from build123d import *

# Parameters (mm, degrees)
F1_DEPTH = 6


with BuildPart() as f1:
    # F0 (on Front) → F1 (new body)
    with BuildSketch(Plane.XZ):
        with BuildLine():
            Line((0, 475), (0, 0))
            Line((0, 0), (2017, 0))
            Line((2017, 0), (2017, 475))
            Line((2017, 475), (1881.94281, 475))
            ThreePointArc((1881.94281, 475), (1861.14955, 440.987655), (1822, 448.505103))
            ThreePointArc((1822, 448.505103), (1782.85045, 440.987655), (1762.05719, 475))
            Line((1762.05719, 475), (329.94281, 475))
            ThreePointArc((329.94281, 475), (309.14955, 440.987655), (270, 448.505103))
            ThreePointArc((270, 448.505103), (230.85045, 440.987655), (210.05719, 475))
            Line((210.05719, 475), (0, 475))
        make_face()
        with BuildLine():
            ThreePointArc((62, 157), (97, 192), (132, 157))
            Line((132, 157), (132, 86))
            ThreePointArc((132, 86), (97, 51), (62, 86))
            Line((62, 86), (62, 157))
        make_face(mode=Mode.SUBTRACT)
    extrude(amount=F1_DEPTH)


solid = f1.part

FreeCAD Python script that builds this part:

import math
import FreeCAD as App
import Part
import Sketcher

doc = App.newDocument("Part")
params = doc.addObject("Spreadsheet::Sheet", "Params")
for row, (alias, value) in enumerate([
    ("sketch1_radius", "34.999999 mm"),
    ("sketch1_width", "2017 mm"),
    ("sketch1_height", "475 mm"),
    ("sketch1_height2", "71 mm"),
    ("pad1_length", "6 mm"),
], start=1):
    params.set(f"A{row}", alias)
    params.set(f"B{row}", "=" + value)
    params.setAlias(f"B{row}", alias)

body = doc.addObject("PartDesign::Body", "Body")

sketch1 = doc.addObject("Sketcher::SketchObject", "Sketch")
body.addObject(sketch1)
sketch1.AttachmentSupport = (doc.XZ_Plane, [""])
sketch1.MapMode = "FlatFace"
sketch1.addGeometry([
    Part.LineSegment(App.Vector(0, 475, 0), App.Vector(0, 0, 0)),
    Part.LineSegment(App.Vector(0, 0, 0), App.Vector(2017, 0, 0)),
    Part.LineSegment(App.Vector(2017, 0, 0), App.Vector(2017, 475, 0)),
    Part.LineSegment(App.Vector(2017, 475, 0), App.Vector(1882, 475, 0)),
    Part.ArcOfCircle(Part.Circle(App.Vector(1847, 473, 0), App.Vector(0, 0, 1), 35), math.radians(-136), math.radians(3)),
    Part.ArcOfCircle(Part.Circle(App.Vector(1797, 473, 0), App.Vector(0, 0, 1), 35), math.radians(177), math.radians(316)),
    Part.LineSegment(App.Vector(1762, 475, 0), App.Vector(330, 475, 0)),
    Part.ArcOfCircle(Part.Circle(App.Vector(295, 473, 0), App.Vector(0, 0, 1), 35), math.radians(-136), math.radians(3)),
    Part.ArcOfCircle(Part.Circle(App.Vector(245, 473, 0), App.Vector(0, 0, 1), 35), math.radians(177), math.radians(316)),
    Part.LineSegment(App.Vector(210, 475, 0), App.Vector(0, 475, 0)),
    Part.LineSegment(App.Vector(62, 86, 0), App.Vector(62, 157, 0)),
    Part.ArcOfCircle(Part.Circle(App.Vector(97, 157, 0), App.Vector(0, 0, 1), 35), math.radians(0), math.radians(180)),
    Part.LineSegment(App.Vector(132, 157, 0), App.Vector(132, 86, 0)),
    Part.ArcOfCircle(Part.Circle(App.Vector(97, 86, 0), App.Vector(0, 0, 1), 35), math.radians(180), math.radians(360)),
], False)
sketch1.addConstraint([
    Sketcher.Constraint("Coincident", 0, 2, 1, 1),
    Sketcher.Constraint("Coincident", 1, 2, 2, 1),
    Sketcher.Constraint("Coincident", 2, 2, 3, 1),
    Sketcher.Constraint("Coincident", 3, 2, 4, 2),
    Sketcher.Constraint("Coincident", 4, 1, 5, 2),
    Sketcher.Constraint("Coincident", 5, 1, 6, 1),
    Sketcher.Constraint("Coincident", 6, 2, 7, 2),
    Sketcher.Constraint("Coincident", 7, 1, 8, 2),
    Sketcher.Constraint("Coincident", 8, 1, 9, 1),
    Sketcher.Constraint("Coincident", 9, 2, 0, 1),
    Sketcher.Constraint("Tangent", 10, 2, 11, 2),
    Sketcher.Constraint("Tangent", 11, 1, 12, 1),
    Sketcher.Constraint("Tangent", 12, 2, 13, 2),
    Sketcher.Constraint("Tangent", 13, 1, 10, 1),
    Sketcher.Constraint("Vertical", 0),
    Sketcher.Constraint("Horizontal", 1),
    Sketcher.Constraint("Vertical", 2),
    Sketcher.Constraint("Horizontal", 3),
    Sketcher.Constraint("Horizontal", 6),
    Sketcher.Constraint("Horizontal", 9),
    Sketcher.Constraint("Vertical", 10),
    Sketcher.Constraint("Vertical", 12),
    Sketcher.Constraint("Coincident", 0, 2, -1, 1),
    Sketcher.Constraint("Equal", 4, 5),
    Sketcher.Constraint("Equal", 5, 7),
    Sketcher.Constraint("Equal", 7, 8),
    Sketcher.Constraint("Equal", 8, 11),
    Sketcher.Constraint("Horizontal", 4, 3, 5, 3),
    Sketcher.Constraint("Horizontal", 5, 3, 7, 3),
    Sketcher.Constraint("Horizontal", 7, 3, 8, 3),
    Sketcher.Constraint("Horizontal", 3, 2, 5, 1),
    Sketcher.Constraint("Horizontal", 4, 1, 7, 1),
    Sketcher.Constraint("Horizontal", 6, 2, 8, 1),
    Sketcher.Constraint("Radius", 4, 34.999999),
    Sketcher.Constraint("DistanceX", 1, 1, 1, 2, 2017.0),
    Sketcher.Constraint("DistanceY", 0, 2, 0, 1, 475.0),
    Sketcher.Constraint("DistanceY", 10, 1, 10, 2, 71.0),
    Sketcher.Constraint("DistanceX", -1, 1, 4, 3, 1847.0),
    Sketcher.Constraint("DistanceY", -1, 1, 4, 3, 473.0),
    Sketcher.Constraint("DistanceX", -1, 1, 5, 3, 1797.0),
    Sketcher.Constraint("DistanceX", -1, 1, 7, 3, 295.0),
    Sketcher.Constraint("DistanceX", -1, 1, 11, 3, 97.0),
    Sketcher.Constraint("DistanceY", -1, 1, 11, 3, 157.0),
])
sketch1.setExpression("Constraints[33]", "Params.sketch1_radius")
sketch1.setExpression("Constraints[34]", "Params.sketch1_width")
sketch1.setExpression("Constraints[35]", "Params.sketch1_height")
sketch1.setExpression("Constraints[36]", "Params.sketch1_height2")
pad1 = doc.addObject("PartDesign::Pad", "Pad")
body.addObject(pad1)
pad1.Profile = sketch1
pad1.setExpression("Length", "Params.pad1_length")

doc.recompute()
